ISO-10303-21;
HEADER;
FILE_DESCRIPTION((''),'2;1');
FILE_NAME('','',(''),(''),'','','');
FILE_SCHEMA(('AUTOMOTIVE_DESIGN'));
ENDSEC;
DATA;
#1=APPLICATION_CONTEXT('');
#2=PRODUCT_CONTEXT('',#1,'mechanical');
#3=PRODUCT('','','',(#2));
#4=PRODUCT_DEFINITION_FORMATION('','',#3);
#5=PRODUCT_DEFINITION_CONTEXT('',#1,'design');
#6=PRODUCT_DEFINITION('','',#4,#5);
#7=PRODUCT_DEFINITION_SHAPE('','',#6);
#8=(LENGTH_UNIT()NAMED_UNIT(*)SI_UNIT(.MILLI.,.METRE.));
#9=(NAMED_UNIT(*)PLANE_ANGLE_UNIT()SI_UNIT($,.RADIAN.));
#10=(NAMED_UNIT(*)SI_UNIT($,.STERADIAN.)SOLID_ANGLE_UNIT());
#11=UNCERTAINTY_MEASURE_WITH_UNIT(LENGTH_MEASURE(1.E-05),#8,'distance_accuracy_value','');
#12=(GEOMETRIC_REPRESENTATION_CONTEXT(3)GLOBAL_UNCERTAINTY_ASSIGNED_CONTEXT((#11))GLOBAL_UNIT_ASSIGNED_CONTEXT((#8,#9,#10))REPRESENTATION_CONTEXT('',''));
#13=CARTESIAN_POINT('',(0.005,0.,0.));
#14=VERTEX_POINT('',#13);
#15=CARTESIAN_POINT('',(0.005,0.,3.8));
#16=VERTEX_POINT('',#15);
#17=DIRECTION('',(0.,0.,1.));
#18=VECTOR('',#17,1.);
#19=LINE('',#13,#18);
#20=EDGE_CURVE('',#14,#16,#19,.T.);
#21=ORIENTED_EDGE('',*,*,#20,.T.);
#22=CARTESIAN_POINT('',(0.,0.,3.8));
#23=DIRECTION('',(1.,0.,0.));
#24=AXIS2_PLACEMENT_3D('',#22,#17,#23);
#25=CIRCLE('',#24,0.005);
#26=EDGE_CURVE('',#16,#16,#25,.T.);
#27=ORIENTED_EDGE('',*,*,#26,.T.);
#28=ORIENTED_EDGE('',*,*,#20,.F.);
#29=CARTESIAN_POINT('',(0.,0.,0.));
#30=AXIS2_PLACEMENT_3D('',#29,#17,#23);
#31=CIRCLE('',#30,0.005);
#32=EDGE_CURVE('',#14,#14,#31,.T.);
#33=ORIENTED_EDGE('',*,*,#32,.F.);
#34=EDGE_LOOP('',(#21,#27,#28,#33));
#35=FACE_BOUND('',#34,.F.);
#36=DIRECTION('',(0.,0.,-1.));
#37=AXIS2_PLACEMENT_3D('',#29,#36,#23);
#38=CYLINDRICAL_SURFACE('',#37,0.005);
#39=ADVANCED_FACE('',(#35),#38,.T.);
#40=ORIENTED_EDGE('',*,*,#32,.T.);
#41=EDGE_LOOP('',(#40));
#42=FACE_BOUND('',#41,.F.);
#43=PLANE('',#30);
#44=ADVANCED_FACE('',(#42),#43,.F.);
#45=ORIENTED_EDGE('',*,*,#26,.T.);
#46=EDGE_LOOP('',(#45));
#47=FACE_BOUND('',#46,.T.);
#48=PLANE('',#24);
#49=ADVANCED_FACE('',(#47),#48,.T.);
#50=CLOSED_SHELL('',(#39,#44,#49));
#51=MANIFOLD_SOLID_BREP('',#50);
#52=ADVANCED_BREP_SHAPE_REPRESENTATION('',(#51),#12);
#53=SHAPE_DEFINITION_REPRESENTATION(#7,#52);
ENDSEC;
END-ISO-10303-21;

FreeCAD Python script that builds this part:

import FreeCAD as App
import Part
import Sketcher

V = App.Vector
Q = App.Units.Quantity

doc = App.newDocument("Part")
params = doc.addObject("Spreadsheet::Sheet", "Params")
for row, (alias, value) in enumerate([
    ("sketch1_diameter", "0.01 mm"),
    ("pad1_length", "3.8 mm"),
], start=1):
    params.set(f"A{row}", alias)
    params.set(f"B{row}", "=" + value)
    params.setAlias(f"B{row}", alias)

body = doc.addObject("PartDesign::Body", "Body")

# Sketch on XY plane
sketch1 = body.newObject("Sketcher::SketchObject", "Sketch")
sketch1.AttachmentSupport = (doc.getObject("XY_Plane"), [""])
sketch1.MapMode = "FlatFace"
sketch1.addGeometry(Part.Circle(V(0, 0, 0), V(0, 0, 1), 0.005), False)
sketch1.addConstraint([
    Sketcher.Constraint("Coincident", 0, 3, -1, 1),
    Sketcher.Constraint("Diameter", 0, Q("0.01 mm")),
])
sketch1.setExpression("Constraints[1]", "Params.sketch1_diameter")
pad1 = body.newObject("PartDesign::Pad", "Pad")
pad1.Profile = sketch1
pad1.setExpression("Length", "Params.pad1_length")

doc.recompute()
